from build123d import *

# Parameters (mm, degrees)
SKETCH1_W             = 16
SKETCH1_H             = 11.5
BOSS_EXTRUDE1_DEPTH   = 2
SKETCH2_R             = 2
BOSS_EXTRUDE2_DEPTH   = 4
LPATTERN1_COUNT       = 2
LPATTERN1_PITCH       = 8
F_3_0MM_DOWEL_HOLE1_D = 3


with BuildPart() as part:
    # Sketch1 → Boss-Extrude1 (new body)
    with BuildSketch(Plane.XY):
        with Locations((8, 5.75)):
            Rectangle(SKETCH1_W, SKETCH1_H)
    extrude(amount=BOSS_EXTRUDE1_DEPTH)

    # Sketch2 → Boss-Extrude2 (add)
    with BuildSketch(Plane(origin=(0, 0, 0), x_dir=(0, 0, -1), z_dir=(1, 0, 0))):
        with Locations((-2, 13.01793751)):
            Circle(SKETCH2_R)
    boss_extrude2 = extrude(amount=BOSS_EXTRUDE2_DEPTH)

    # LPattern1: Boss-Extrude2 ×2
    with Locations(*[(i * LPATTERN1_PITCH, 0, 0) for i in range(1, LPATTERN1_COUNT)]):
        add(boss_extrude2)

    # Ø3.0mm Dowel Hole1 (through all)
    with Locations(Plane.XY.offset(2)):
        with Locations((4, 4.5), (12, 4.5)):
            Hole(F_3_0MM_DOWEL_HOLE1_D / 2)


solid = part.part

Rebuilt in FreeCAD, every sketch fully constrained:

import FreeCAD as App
import Part
import Sketcher

doc = App.newDocument("Part")
params = doc.addObject("Spreadsheet::Sheet", "Params")
for row, (alias, value) in enumerate([
    ("sketch1_width", "16 mm"),
    ("sketch1_height", "11.5 mm"),
    ("pad1_length", "2 mm"),
    ("sketch2_diameter", "4 mm"),
    ("pad2_length", "4 mm"),
    ("linearpattern_pitch", "8 mm"),
    ("sketch3_diameter", "3 mm"),
    ("hole_diameter", "3 mm"),
], start=1):
    params.set(f"A{row}", alias)
    params.set(f"B{row}", "=" + value)
    params.setAlias(f"B{row}", alias)

body = doc.addObject("PartDesign::Body", "Body")

sketch1 = doc.addObject("Sketcher::SketchObject", "Sketch")
body.addObject(sketch1)
sketch1.AttachmentSupport = (doc.XY_Plane, [""])
sketch1.MapMode = "FlatFace"
sketch1.addGeometry([
    Part.LineSegment(App.Vector(0, 12, 0), App.Vector(0, 0, 0)),
    Part.LineSegment(App.Vector(0, 0, 0), App.Vector(16, 0, 0)),
    Part.LineSegment(App.Vector(16, 0, 0), App.Vector(16, 12, 0)),
    Part.LineSegment(App.Vector(16, 12, 0), App.Vector(0, 12, 0)),
], False)
sketch1.addConstraint([
    Sketcher.Constraint("Coincident", 0, 2, 1, 1),
    Sketcher.Constraint("Coincident", 1, 2, 2, 1),
    Sketcher.Constraint("Coincident", 2, 2, 3, 1),
    Sketcher.Constraint("Coincident", 3, 2, 0, 1),
    Sketcher.Constraint("Vertical", 0),
    Sketcher.Constraint("Horizontal", 1),
    Sketcher.Constraint("Vertical", 2),
    Sketcher.Constraint("Horizontal", 3),
    Sketcher.Constraint("Coincident", 0, 2, -1, 1),
    Sketcher.Constraint("DistanceX", 1, 1, 1, 2, 16.0),
    Sketcher.Constraint("DistanceY", 0, 2, 0, 1, 11.5),
])
sketch1.setExpression("Constraints[9]", "Params.sketch1_width")
sketch1.setExpression("Constraints[10]", "Params.sketch1_height")
pad1 = doc.addObject("PartDesign::Pad", "Pad")
body.addObject(pad1)
pad1.Profile = sketch1
pad1.setExpression("Length", "Params.pad1_length")

sketch2 = doc.addObject("Sketcher::SketchObject", "Sketch001")
body.addObject(sketch2)
sketch2.AttachmentSupport = (doc.YZ_Plane, [""])
sketch2.MapMode = "FlatFace"
sketch2.addGeometry(Part.Circle(App.Vector(13, 2, 0), App.Vector(0, 0, 1), 2), False)
sketch2.addConstraint([
    Sketcher.Constraint("Diameter", 0, 4.0),
    Sketcher.Constraint("DistanceY", -1, 1, 0, 3, 2.0),
    Sketcher.Constraint("DistanceX", -1, 1, 0, 3, 13.017938),
])
sketch2.setExpression("Constraints[0]", "Params.sketch2_diameter")
pad2 = doc.addObject("PartDesign::Pad", "Pad001")
body.addObject(pad2)
pad2.Profile = sketch2
pad2.setExpression("Length", "Params.pad2_length")
doc.recompute()

linearpattern = doc.addObject("PartDesign::LinearPattern", "LinearPattern")
body.addObject(linearpattern)
linearpattern.Originals = [pad2]
linearpattern.Direction = (doc.X_Axis, [""])
linearpattern.Mode = "offset"
linearpattern.setExpression("Offset", "Params.linearpattern_pitch")
linearpattern.Occurrences = 2
body.Tip = linearpattern

sketch3 = doc.addObject("Sketcher::SketchObject", "Sketch002")
body.addObject(sketch3)
sketch3.AttachmentSupport = (doc.XY_Plane, [""])
sketch3.MapMode = "FlatFace"
sketch3.AttachmentOffset = App.Placement(App.Vector(0, 0, 2), App.Rotation())
sketch3.addGeometry([
    Part.Circle(App.Vector(4, 4.5, 0), App.Vector(0, 0, 1), 1.5),
    Part.Circle(App.Vector(12, 4.5, 0), App.Vector(0, 0, 1), 1.5),
], False)
sketch3.addConstraint([
    Sketcher.Constraint("Equal", 0, 1),
    Sketcher.Constraint("Horizontal", 0, 3, 1, 3),
    Sketcher.Constraint("Diameter", 0, 3.0),
    Sketcher.Constraint("DistanceX", -1, 1, 0, 3, 4.0),
    Sketcher.Constraint("DistanceX", -1, 1, 1, 3, 12.0),
    Sketcher.Constraint("DistanceY", -1, 1, 0, 3, 4.5),
])
sketch3.setExpression("Constraints[2]", "Params.sketch3_diameter")
doc.recompute()
hole = doc.addObject("PartDesign::Hole", "Hole")
body.addObject(hole)
hole.Profile = sketch3
hole.ThreadType = "None"
hole.setExpression("Diameter", "Params.hole_diameter")
hole.DepthType = "ThroughAll"

doc.recompute()
